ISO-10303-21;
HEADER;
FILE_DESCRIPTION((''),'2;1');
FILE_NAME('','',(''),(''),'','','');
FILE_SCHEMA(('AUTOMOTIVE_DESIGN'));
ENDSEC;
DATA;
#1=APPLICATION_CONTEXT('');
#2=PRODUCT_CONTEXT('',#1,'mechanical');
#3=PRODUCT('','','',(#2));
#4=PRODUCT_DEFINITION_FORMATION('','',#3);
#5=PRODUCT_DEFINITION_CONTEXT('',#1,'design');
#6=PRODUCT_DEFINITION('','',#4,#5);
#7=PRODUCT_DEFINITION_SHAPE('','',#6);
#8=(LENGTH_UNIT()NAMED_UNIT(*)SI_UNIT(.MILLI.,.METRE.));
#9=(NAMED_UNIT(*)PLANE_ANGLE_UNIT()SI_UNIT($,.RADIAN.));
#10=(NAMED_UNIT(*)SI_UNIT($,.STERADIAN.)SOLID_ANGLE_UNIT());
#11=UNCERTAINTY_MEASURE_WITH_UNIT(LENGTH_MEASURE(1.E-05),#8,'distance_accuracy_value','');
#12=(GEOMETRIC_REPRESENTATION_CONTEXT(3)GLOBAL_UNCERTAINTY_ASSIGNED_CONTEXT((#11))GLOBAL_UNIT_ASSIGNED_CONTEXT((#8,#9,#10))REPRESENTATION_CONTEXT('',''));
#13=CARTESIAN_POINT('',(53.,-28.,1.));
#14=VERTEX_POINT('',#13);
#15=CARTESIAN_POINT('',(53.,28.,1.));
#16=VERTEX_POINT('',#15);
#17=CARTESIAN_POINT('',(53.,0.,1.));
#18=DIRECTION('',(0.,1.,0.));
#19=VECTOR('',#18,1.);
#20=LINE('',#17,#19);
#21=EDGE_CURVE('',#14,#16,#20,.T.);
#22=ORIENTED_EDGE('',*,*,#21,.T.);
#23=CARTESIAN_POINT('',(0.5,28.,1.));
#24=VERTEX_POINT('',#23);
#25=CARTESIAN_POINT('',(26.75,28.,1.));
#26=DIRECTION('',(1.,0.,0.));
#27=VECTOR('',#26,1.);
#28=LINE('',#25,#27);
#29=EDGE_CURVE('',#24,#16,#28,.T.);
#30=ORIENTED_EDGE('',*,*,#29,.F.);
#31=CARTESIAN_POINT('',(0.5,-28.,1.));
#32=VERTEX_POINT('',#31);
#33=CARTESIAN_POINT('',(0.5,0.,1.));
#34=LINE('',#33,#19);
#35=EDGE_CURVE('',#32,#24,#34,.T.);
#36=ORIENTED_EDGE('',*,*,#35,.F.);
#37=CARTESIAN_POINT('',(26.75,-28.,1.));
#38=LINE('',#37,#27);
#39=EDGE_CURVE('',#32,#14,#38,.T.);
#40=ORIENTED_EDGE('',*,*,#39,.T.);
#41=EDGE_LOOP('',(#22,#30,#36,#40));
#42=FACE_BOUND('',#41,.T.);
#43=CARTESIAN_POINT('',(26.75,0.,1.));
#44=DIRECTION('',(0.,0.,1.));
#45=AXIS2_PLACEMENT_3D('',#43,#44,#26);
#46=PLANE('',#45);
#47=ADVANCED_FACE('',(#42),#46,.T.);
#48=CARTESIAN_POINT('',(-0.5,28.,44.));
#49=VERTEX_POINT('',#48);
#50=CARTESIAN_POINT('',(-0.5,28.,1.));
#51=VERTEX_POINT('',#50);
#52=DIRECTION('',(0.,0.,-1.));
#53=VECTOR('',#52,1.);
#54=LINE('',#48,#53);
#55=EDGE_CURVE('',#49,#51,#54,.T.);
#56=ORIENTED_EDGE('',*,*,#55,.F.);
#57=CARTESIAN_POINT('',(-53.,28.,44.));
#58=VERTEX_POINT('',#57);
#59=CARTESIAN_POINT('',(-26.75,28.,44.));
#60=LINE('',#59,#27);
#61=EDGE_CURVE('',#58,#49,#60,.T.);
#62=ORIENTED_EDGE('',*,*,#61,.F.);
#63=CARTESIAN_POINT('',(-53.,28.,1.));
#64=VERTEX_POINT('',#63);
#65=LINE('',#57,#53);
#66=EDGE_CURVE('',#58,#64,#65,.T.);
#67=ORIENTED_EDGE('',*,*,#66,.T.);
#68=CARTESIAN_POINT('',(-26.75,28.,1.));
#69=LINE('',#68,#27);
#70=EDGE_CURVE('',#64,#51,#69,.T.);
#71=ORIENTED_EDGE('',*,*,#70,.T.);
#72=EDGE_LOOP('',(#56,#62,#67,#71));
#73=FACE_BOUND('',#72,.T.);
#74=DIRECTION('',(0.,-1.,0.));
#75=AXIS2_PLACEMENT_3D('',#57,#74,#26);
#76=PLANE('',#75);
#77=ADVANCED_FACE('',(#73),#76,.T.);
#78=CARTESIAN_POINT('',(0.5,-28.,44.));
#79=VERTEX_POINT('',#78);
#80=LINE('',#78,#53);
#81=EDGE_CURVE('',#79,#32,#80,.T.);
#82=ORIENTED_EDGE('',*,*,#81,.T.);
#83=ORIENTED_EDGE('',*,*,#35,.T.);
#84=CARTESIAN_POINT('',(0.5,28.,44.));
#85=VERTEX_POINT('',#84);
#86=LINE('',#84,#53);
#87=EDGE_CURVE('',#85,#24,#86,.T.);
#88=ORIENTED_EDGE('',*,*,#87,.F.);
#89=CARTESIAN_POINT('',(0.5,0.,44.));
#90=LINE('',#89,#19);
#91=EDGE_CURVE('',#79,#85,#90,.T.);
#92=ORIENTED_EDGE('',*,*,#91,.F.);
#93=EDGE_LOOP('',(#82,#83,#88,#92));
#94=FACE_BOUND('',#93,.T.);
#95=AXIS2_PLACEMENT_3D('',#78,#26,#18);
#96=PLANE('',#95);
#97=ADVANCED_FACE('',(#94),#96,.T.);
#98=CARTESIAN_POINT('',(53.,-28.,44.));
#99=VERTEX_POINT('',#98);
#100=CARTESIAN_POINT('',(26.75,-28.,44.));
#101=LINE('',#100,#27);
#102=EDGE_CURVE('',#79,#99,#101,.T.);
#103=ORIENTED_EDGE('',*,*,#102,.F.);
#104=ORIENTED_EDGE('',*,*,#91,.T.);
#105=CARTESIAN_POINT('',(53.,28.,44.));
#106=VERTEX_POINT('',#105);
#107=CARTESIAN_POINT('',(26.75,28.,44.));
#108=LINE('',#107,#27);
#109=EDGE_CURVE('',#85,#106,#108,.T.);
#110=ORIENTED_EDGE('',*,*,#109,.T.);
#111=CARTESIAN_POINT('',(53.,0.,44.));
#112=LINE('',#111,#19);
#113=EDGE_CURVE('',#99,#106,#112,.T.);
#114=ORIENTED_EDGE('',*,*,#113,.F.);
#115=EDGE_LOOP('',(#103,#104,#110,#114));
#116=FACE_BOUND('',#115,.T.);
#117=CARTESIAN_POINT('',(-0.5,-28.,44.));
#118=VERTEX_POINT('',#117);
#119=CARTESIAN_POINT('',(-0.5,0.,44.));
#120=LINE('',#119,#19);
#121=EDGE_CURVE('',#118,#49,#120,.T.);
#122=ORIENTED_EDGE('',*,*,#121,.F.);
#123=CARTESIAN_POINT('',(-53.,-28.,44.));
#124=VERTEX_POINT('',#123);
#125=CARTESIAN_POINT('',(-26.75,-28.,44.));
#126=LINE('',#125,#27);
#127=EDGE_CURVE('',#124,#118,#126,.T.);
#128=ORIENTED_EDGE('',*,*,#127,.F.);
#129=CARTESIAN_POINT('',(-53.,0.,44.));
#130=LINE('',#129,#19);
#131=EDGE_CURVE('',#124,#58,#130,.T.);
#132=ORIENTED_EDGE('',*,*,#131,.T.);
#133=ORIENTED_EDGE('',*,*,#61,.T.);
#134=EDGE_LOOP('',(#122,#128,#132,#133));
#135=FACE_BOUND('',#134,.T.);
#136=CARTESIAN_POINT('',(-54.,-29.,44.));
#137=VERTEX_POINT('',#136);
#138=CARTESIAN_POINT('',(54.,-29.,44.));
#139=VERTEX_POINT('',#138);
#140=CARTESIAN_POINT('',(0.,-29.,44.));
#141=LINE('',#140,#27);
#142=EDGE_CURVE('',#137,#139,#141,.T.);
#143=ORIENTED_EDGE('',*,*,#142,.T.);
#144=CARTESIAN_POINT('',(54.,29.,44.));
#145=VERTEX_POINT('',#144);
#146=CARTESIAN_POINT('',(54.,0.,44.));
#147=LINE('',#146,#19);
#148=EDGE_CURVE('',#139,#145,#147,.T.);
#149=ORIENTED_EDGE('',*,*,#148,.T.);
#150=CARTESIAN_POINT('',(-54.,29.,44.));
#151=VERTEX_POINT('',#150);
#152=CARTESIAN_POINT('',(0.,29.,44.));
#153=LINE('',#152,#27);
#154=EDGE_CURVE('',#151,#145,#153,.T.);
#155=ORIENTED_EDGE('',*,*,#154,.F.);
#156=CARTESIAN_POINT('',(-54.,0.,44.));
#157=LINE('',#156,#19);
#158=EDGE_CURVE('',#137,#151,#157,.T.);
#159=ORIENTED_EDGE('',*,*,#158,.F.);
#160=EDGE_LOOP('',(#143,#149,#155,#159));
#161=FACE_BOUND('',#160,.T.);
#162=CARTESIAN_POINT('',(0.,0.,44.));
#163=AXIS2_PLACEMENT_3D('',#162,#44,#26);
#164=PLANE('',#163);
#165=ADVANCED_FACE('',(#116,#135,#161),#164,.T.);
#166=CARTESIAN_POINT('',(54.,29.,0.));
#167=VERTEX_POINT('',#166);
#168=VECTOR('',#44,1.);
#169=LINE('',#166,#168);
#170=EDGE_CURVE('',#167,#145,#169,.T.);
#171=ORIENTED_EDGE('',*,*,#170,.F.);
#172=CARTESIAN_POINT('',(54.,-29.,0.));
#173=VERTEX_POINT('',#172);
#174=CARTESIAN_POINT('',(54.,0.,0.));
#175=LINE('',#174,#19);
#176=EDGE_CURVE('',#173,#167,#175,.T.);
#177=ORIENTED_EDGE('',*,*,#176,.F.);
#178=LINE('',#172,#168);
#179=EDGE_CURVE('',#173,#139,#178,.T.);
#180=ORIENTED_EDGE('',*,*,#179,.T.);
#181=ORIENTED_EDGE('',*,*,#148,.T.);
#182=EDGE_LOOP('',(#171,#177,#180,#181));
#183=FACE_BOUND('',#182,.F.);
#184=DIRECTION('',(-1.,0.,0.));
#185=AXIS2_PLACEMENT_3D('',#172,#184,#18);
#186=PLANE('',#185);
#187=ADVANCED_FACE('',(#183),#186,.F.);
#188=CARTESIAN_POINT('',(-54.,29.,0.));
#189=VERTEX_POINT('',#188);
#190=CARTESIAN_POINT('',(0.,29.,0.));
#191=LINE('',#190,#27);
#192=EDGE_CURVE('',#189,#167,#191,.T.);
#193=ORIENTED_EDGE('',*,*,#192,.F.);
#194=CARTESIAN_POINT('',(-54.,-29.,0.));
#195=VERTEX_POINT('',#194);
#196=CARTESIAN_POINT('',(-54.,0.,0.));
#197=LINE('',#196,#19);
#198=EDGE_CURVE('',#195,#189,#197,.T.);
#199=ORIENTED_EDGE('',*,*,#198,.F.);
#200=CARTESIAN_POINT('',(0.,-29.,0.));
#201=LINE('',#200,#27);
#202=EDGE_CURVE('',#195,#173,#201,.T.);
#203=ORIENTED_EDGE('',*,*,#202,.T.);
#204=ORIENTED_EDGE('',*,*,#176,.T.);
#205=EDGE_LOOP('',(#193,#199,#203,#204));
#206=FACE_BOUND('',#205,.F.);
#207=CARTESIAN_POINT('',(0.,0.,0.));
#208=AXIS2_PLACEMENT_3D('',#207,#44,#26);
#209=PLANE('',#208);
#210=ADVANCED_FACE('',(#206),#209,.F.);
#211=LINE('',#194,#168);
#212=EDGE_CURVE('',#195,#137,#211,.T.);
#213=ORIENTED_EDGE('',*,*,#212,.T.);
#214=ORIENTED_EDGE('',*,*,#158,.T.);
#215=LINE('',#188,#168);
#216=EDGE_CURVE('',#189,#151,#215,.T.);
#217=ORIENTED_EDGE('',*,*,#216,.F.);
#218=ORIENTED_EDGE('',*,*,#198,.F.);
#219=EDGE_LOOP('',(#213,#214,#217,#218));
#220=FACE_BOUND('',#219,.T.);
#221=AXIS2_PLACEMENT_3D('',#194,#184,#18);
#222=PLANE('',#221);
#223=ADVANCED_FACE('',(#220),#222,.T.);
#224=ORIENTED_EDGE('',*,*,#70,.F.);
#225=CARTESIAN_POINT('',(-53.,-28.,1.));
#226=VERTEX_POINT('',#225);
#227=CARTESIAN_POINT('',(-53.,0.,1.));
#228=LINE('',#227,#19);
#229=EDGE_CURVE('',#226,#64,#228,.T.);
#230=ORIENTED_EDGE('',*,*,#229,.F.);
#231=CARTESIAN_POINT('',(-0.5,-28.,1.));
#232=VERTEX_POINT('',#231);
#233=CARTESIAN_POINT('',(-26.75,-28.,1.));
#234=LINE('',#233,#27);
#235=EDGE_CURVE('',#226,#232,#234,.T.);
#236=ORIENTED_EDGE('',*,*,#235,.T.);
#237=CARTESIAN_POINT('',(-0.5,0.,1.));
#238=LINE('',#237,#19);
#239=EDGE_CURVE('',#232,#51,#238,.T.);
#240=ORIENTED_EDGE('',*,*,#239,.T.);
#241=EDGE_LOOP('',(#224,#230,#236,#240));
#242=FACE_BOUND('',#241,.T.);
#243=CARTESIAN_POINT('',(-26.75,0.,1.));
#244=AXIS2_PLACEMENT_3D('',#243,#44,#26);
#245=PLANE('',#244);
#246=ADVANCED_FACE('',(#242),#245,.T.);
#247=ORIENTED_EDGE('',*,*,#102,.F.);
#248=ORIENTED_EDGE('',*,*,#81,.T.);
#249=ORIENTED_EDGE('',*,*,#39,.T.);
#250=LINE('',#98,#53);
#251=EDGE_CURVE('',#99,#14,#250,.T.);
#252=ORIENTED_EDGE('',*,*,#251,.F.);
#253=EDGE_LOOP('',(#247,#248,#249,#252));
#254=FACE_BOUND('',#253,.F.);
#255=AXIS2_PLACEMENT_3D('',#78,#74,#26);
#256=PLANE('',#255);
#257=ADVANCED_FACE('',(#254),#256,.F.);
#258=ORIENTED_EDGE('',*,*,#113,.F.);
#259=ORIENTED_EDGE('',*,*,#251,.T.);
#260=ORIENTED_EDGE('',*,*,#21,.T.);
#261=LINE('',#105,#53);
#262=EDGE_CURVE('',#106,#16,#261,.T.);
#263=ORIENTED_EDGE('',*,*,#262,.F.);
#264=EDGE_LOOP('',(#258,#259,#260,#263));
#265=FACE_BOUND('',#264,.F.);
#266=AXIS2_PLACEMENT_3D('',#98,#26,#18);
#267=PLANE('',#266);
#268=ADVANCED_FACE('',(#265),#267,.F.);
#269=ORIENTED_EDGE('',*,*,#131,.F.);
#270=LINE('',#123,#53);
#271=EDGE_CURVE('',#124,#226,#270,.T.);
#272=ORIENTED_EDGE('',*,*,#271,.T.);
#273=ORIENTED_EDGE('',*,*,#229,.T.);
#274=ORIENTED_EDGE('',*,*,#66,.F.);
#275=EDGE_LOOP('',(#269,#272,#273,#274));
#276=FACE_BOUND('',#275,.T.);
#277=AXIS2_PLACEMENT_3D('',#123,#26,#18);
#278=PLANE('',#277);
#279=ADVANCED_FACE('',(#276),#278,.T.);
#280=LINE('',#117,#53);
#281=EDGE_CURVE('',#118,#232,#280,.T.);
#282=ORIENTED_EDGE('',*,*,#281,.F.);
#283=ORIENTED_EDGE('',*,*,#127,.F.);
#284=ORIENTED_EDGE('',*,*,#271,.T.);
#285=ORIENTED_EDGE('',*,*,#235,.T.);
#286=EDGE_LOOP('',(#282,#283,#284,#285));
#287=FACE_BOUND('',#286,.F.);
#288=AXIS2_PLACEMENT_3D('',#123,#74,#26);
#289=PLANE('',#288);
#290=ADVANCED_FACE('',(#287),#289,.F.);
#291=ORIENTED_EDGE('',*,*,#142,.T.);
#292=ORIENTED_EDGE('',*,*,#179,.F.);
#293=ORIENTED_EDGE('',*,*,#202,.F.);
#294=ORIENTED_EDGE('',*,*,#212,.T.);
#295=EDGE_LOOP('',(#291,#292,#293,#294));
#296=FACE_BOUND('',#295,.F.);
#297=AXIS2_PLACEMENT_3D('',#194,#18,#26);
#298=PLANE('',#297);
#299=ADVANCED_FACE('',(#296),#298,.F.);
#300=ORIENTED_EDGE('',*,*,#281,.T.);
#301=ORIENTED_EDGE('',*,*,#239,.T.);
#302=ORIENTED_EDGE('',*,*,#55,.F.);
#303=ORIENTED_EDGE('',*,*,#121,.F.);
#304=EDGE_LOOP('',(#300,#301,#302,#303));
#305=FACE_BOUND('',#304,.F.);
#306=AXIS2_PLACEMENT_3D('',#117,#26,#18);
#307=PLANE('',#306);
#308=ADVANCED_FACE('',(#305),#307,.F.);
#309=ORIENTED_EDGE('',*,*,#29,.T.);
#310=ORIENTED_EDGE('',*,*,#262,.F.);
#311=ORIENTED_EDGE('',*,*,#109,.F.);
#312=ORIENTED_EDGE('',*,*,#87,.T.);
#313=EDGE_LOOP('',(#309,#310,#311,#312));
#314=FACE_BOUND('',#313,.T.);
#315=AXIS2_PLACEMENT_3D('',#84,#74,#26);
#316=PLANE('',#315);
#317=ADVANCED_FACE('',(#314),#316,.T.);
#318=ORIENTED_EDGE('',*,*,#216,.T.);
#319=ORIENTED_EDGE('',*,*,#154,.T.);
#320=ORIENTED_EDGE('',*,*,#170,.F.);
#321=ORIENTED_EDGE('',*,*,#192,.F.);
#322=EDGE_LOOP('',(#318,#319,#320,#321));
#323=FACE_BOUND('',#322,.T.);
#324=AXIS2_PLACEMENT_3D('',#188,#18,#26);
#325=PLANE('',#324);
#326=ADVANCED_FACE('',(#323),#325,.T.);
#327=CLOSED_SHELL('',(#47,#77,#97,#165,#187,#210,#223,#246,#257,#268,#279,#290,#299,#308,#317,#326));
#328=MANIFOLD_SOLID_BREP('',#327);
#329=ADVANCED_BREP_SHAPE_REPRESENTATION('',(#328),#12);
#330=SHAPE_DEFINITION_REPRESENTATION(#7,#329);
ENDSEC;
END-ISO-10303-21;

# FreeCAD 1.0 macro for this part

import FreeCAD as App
import Part
import Sketcher

V = App.Vector


def add_polygon(sketch, points):
    """Adds a closed chain of lines whose ends are joined by coincident constraints."""
    first, n = sketch.GeometryCount, len(points)
    for a, b in zip(points, points[1:] + points[:1]):
        sketch.addGeometry(Part.LineSegment(App.Vector(*a, 0), App.Vector(*b, 0)), False)
    for i in range(n):
        sketch.addConstraint(Sketcher.Constraint("Coincident", first + i, 2, first + (i + 1) % n, 1))

doc = App.newDocument("Part")
body = doc.addObject("PartDesign::Body", "Body")

# Sketch on XY plane
sketch1 = body.newObject("Sketcher::SketchObject", "Sketch")
sketch1.AttachmentSupport = (doc.getObject("XY_Plane"), [""])
sketch1.MapMode = "FlatFace"
add_polygon(sketch1, [(-54, 29), (-54, -29), (54, -29), (54, 29)])  # lines 0-3
sketch1.addConstraint([
    Sketcher.Constraint("Vertical", 0),
    Sketcher.Constraint("Horizontal", 1),
    Sketcher.Constraint("Vertical", 2),
    Sketcher.Constraint("Horizontal", 3),
    Sketcher.Constraint("Symmetric", 0, 2, 2, 2, -1, 1),
    Sketcher.Constraint("DistanceX", 1, 1, 1, 2, 108.0),
    Sketcher.Constraint("DistanceY", 0, 2, 0, 1, 58.0),
])
pad1 = body.newObject("PartDesign::Pad", "Pad")
pad1.Profile = sketch1
pad1.Length = 44

# Sketch on XY plane
sketch2 = body.newObject("Sketcher::SketchObject", "Sketch001")
sketch2.AttachmentSupport = (doc.getObject("XY_Plane"), [""])
sketch2.MapMode = "FlatFace"
sketch2.AttachmentOffset = App.Placement(V(0, 0, 44), App.Rotation())
add_polygon(sketch2, [(-53, 28), (-53, -28), (-0.5, -28), (-0.5, 28)])  # lines 0-3
add_polygon(sketch2, [(0.5, 28), (0.5, -28), (53, -28), (53, 28)])  # lines 4-7
sketch2.addConstraint([
    Sketcher.Constraint("Vertical", 0),
    Sketcher.Constraint("Horizontal", 1),
    Sketcher.Constraint("Vertical", 2),
    Sketcher.Constraint("Horizontal", 3),
    Sketcher.Constraint("Vertical", 4),
    Sketcher.Constraint("Horizontal", 5),
    Sketcher.Constraint("Vertical", 6),
    Sketcher.Constraint("Horizontal", 7),
    Sketcher.Constraint("Symmetric", 2, 2, 4, 2, -1, 1),
    Sketcher.Constraint("Symmetric", 0, 2, 6, 2, -1, 1),
    Sketcher.Constraint("Horizontal", 1, 2, 4, 2),
    Sketcher.Constraint("DistanceY", 0, 2, 0, 1, 56.0),
    Sketcher.Constraint("DistanceX", 1, 1, 1, 2, 52.5),
    Sketcher.Constraint("DistanceX", 0, 2, -1, 1, 53.0),
])
pocket1 = body.newObject("PartDesign::Pocket", "Pocket")
pocket1.Profile = sketch2
pocket1.Length = 43

doc.recompute()
